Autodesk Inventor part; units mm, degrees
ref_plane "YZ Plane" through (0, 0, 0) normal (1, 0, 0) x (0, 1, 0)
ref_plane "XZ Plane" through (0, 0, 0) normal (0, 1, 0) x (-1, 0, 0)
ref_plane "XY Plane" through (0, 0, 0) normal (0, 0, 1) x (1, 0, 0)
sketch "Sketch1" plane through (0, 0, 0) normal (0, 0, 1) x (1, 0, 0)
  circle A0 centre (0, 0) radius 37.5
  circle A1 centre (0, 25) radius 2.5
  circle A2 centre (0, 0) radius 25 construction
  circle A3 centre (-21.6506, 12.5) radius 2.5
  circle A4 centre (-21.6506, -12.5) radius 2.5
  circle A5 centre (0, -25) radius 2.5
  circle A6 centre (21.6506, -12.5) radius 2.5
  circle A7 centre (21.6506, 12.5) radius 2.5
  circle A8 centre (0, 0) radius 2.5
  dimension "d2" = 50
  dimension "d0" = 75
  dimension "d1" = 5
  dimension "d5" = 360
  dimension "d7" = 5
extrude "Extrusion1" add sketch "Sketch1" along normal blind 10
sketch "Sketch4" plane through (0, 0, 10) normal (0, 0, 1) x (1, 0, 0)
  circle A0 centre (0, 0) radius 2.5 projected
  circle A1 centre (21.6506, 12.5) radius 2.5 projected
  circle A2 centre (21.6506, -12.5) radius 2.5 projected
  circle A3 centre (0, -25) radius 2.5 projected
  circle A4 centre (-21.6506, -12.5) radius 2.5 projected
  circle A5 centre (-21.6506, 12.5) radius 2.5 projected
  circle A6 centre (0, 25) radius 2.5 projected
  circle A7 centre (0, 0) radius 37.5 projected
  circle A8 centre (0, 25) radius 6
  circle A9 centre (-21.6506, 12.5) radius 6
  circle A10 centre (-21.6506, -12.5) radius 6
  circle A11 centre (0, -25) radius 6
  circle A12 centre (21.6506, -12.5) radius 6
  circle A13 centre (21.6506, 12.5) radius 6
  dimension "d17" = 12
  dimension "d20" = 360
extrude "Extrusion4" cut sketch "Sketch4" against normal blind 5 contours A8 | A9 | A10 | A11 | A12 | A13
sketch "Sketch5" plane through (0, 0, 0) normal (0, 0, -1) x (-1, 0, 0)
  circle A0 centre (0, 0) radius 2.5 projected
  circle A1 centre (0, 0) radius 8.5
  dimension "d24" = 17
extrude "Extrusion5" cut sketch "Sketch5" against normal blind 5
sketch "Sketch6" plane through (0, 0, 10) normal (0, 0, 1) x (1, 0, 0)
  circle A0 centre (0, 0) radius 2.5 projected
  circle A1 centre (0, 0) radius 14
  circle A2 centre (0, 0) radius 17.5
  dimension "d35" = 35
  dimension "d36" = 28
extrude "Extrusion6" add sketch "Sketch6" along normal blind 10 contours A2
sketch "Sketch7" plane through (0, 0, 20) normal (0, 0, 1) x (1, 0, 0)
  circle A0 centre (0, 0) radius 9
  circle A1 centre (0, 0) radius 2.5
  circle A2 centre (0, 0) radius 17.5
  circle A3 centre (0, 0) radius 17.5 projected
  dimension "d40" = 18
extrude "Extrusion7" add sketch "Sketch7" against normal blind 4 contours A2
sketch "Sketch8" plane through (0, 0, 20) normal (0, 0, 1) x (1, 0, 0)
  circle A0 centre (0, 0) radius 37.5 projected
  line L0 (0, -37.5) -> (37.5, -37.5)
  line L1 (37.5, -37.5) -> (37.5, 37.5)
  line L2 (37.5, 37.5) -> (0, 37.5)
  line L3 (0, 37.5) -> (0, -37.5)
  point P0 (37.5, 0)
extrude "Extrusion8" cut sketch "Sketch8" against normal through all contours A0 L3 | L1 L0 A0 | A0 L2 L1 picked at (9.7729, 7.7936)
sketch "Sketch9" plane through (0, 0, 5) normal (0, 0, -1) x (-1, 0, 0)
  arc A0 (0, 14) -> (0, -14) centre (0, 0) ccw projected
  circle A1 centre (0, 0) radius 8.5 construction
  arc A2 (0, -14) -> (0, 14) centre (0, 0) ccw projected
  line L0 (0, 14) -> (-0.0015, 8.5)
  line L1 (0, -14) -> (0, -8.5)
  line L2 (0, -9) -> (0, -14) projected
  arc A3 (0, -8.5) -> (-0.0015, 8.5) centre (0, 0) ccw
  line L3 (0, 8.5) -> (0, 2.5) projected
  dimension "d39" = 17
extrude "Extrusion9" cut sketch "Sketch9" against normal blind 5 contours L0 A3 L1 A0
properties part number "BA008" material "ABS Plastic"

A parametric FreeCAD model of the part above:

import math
import FreeCAD as App
import Part
import Sketcher

doc = App.newDocument("Part")
body = doc.addObject("PartDesign::Body", "Body")

sketch1 = body.newObject("Sketcher::SketchObject", "Sketch")
sketch1.AttachmentSupport = (doc.getObject("XY_Plane"), [""])
sketch1.MapMode = "FlatFace"
sketch1.addGeometry([
    Part.Circle(App.Vector(0, 0, 0), App.Vector(0, 0, 1), 37.5),
    Part.Circle(App.Vector(-21.7, -12.5, 0), App.Vector(0, 0, 1), 2.5),
    Part.Circle(App.Vector(0, -25, 0), App.Vector(0, 0, 1), 2.5),
    Part.Circle(App.Vector(21.7, -12.5, 0), App.Vector(0, 0, 1), 2.5),
    Part.Circle(App.Vector(-21.7, 12.5, 0), App.Vector(0, 0, 1), 2.5),
    Part.Circle(App.Vector(0, 0, 0), App.Vector(0, 0, 1), 2.5),
    Part.Circle(App.Vector(21.7, 12.5, 0), App.Vector(0, 0, 1), 2.5),
    Part.Circle(App.Vector(0, 25, 0), App.Vector(0, 0, 1), 2.5),
], False)
sketch1.addConstraint([
    Sketcher.Constraint("Coincident", 0, 3, -1, 1),
    Sketcher.Constraint("Coincident", 5, 3, -1, 1),
    Sketcher.Constraint("Equal", 1, 2),
    Sketcher.Constraint("Equal", 2, 3),
    Sketcher.Constraint("Equal", 3, 4),
    Sketcher.Constraint("Equal", 4, 5),
    Sketcher.Constraint("Equal", 5, 6),
    Sketcher.Constraint("Equal", 6, 7),
    Sketcher.Constraint("Symmetric", 3, 3, 4, 3, -1, 1),
    Sketcher.Constraint("Symmetric", 1, 3, 6, 3, -1, 1),
    Sketcher.Constraint("Symmetric", 2, 3, 7, 3, -1, 1),
    Sketcher.Constraint("Symmetric", 1, 3, 3, 3, -2),
    Sketcher.Constraint("PointOnObject", 2, 3, -2),
    Sketcher.Constraint("Diameter", 0, 75.0),
    Sketcher.Constraint("Diameter", 1, 5.0),
    Sketcher.Constraint("DistanceY", 2, 3, -1, 1, 25.0),
    Sketcher.Constraint("DistanceY", 1, 3, 4, 3, 25.0),
    Sketcher.Constraint("DistanceX", 1, 3, -1, 1, 21.6506),
])
pad1 = body.newObject("PartDesign::Pad", "Pad")
pad1.Profile = sketch1
pad1.Length = 10

sketch2 = body.newObject("Sketcher::SketchObject", "Sketch001")
sketch2.AttachmentSupport = (doc.getObject("XY_Plane"), [""])
sketch2.MapMode = "FlatFace"
sketch2.AttachmentOffset = App.Placement(App.Vector(0, 0, 10), App.Rotation())
sketch2.addGeometry([
    Part.Circle(App.Vector(0, 25, 0), App.Vector(0, 0, 1), 6),
    Part.Circle(App.Vector(0, 25, 0), App.Vector(0, 0, 1), 2.5),
    Part.Circle(App.Vector(-21.7, 12.5, 0), App.Vector(0, 0, 1), 6),
    Part.Circle(App.Vector(-21.7, 12.5, 0), App.Vector(0, 0, 1), 2.5),
    Part.Circle(App.Vector(-21.7, -12.5, 0), App.Vector(0, 0, 1), 6),
    Part.Circle(App.Vector(-21.7, -12.5, 0), App.Vector(0, 0, 1), 2.5),
    Part.Circle(App.Vector(0, -25, 0), App.Vector(0, 0, 1), 6),
    Part.Circle(App.Vector(0, -25, 0), App.Vector(0, 0, 1), 2.5),
    Part.Circle(App.Vector(21.7, -12.5, 0), App.Vector(0, 0, 1), 6),
    Part.Circle(App.Vector(21.7, -12.5, 0), App.Vector(0, 0, 1), 2.5),
    Part.Circle(App.Vector(21.7, 12.5, 0), App.Vector(0, 0, 1), 6),
    Part.Circle(App.Vector(21.7, 12.5, 0), App.Vector(0, 0, 1), 2.5),
], False)
sketch2.addConstraint([
    Sketcher.Constraint("Coincident", 1, 3, 0, 3),
    Sketcher.Constraint("Coincident", 3, 3, 2, 3),
    Sketcher.Constraint("Coincident", 5, 3, 4, 3),
    Sketcher.Constraint("Coincident", 7, 3, 6, 3),
    Sketcher.Constraint("Coincident", 9, 3, 8, 3),
    Sketcher.Constraint("Coincident", 11, 3, 10, 3),
    Sketcher.Constraint("Equal", 0, 2),
    Sketcher.Constraint("Equal", 1, 3),
    Sketcher.Constraint("Equal", 2, 4),
    Sketcher.Constraint("Equal", 3, 5),
    Sketcher.Constraint("Equal", 4, 6),
    Sketcher.Constraint("Equal", 5, 7),
    Sketcher.Constraint("Equal", 6, 8),
    Sketcher.Constraint("Equal", 7, 9),
    Sketcher.Constraint("Equal", 8, 10),
    Sketcher.Constraint("Equal", 9, 11),
    Sketcher.Constraint("Symmetric", 0, 3, 6, 3, -1, 1),
    Sketcher.Constraint("Symmetric", 2, 3, 8, 3, -1, 1),
    Sketcher.Constraint("Symmetric", 4, 3, 10, 3, -1, 1),
    Sketcher.Constraint("Symmetric", 4, 3, 8, 3, -2),
    Sketcher.Constraint("PointOnObject", 0, 3, -2),
    Sketcher.Constraint("Diameter", 0, 12.0),
    Sketcher.Constraint("Diameter", 1, 5.0),
    Sketcher.Constraint("DistanceY", -1, 1, 0, 3, 25.0),
    Sketcher.Constraint("DistanceY", 4, 3, 2, 3, 25.0),
    Sketcher.Constraint("DistanceX", 2, 3, -1, 1, 21.6506),
])
pocket1 = body.newObject("PartDesign::Pocket", "Pocket")
pocket1.Profile = sketch2
pocket1.Length = 5

sketch3 = body.newObject("Sketcher::SketchObject", "Sketch002")
sketch3.AttachmentSupport = (doc.getObject("XY_Plane"), [""])
sketch3.MapMode = "FlatFace"
sketch3.addGeometry([
    Part.Circle(App.Vector(0, 0, 0), App.Vector(0, 0, 1), 8.5),
    Part.Circle(App.Vector(0, 0, 0), App.Vector(0, 0, 1), 2.5),
], False)
sketch3.addConstraint([
    Sketcher.Constraint("Coincident", 0, 3, -1, 1),
    Sketcher.Constraint("Coincident", 1, 3, -1, 1),
    Sketcher.Constraint("Diameter", 0, 17.0),
    Sketcher.Constraint("Diameter", 1, 5.0),
])
pocket2 = body.newObject("PartDesign::Pocket", "Pocket001")
pocket2.Profile = sketch3
pocket2.Length = 5
pocket2.Reversed = True

sketch4 = body.newObject("Sketcher::SketchObject", "Sketch003")
sketch4.AttachmentSupport = (doc.getObject("XY_Plane"), [""])
sketch4.MapMode = "FlatFace"
sketch4.AttachmentOffset = App.Placement(App.Vector(0, 0, 10), App.Rotation())
sketch4.addGeometry([
    Part.Circle(App.Vector(0, 0, 0), App.Vector(0, 0, 1), 18),
    Part.Circle(App.Vector(0, 0, 0), App.Vector(0, 0, 1), 14),
], False)
sketch4.addConstraint([
    Sketcher.Constraint("Coincident", 0, 3, -1, 1),
    Sketcher.Constraint("Coincident", 1, 3, -1, 1),
    Sketcher.Constraint("Diameter", 0, 35.0),
    Sketcher.Constraint("Diameter", 1, 28.0),
])
pad2 = body.newObject("PartDesign::Pad", "Pad001")
pad2.Profile = sketch4
pad2.Length = 10

sketch5 = body.newObject("Sketcher::SketchObject", "Sketch004")
sketch5.AttachmentSupport = (doc.getObject("XY_Plane"), [""])
sketch5.MapMode = "FlatFace"
sketch5.AttachmentOffset = App.Placement(App.Vector(0, 0, 20), App.Rotation())
sketch5.addGeometry([
    Part.Circle(App.Vector(0, 0, 0), App.Vector(0, 0, 1), 18),
    Part.Circle(App.Vector(0, 0, 0), App.Vector(0, 0, 1), 9),
], False)
sketch5.addConstraint([
    Sketcher.Constraint("Coincident", 0, 3, -1, 1),
    Sketcher.Constraint("Coincident", 1, 3, -1, 1),
    Sketcher.Constraint("Diameter", 1, 18.0),
    Sketcher.Constraint("Diameter", 0, 35.0),
])
pad3 = body.newObject("PartDesign::Pad", "Pad002")
pad3.Profile = sketch5
pad3.Length = 4
pad3.Reversed = True

sketch6 = body.newObject("Sketcher::SketchObject", "Sketch005")
sketch6.AttachmentSupport = (doc.getObject("XY_Plane"), [""])
sketch6.MapMode = "FlatFace"
sketch6.AttachmentOffset = App.Placement(App.Vector(0, 0, 20), App.Rotation())
sketch6.addGeometry([
    Part.LineSegment(App.Vector(0, 38, 0), App.Vector(0, -38, 0)),
    Part.LineSegment(App.Vector(0, -38, 0), App.Vector(38, -38, 0)),
    Part.LineSegment(App.Vector(38, -38, 0), App.Vector(38, 38, 0)),
    Part.LineSegment(App.Vector(38, 38, 0), App.Vector(0, 38, 0)),
], False)
sketch6.addConstraint([
    Sketcher.Constraint("Coincident", 0, 2, 1, 1),
    Sketcher.Constraint("Coincident", 1, 2, 2, 1),
    Sketcher.Constraint("Coincident", 2, 2, 3, 1),
    Sketcher.Constraint("Coincident", 3, 2, 0, 1),
    Sketcher.Constraint("Vertical", 0),
    Sketcher.Constraint("Horizontal", 1),
    Sketcher.Constraint("Vertical", 2),
    Sketcher.Constraint("Horizontal", 3),
    Sketcher.Constraint("Symmetric", 0, 2, 3, 2, -1, 1),
    Sketcher.Constraint("DistanceY", 0, 2, 0, 1, 75.0),
    Sketcher.Constraint("DistanceX", 1, 1, 1, 2, 37.5),
])
pocket3 = body.newObject("PartDesign::Pocket", "Pocket002")
pocket3.Profile = sketch6
pocket3.Type = "ThroughAll"

sketch7 = body.newObject("Sketcher::SketchObject", "Sketch006")
sketch7.AttachmentSupport = (doc.getObject("XY_Plane"), [""])
sketch7.MapMode = "FlatFace"
sketch7.AttachmentOffset = App.Placement(App.Vector(0, 0, 5), App.Rotation())
sketch7.addGeometry([
    Part.LineSegment(App.Vector(0, 8, 0), App.Vector(0, 14, 0)),
    Part.ArcOfCircle(Part.Circle(App.Vector(0, 0, 0), App.Vector(0, 0, 1), 14), math.radians(-90), math.radians(90)),
    Part.LineSegment(App.Vector(0, -14, 0), App.Vector(0, -8, 0)),
    Part.ArcOfCircle(Part.Circle(App.Vector(0, 0, 0), App.Vector(0, 0, 1), 8), math.radians(90), math.radians(270)),
], False)
sketch7.addConstraint([
    Sketcher.Constraint("Coincident", 0, 2, 1, 2),
    Sketcher.Constraint("Coincident", 1, 1, 2, 1),
    Sketcher.Constraint("Coincident", 2, 2, 3, 2),
    Sketcher.Constraint("Coincident", 3, 1, 0, 1),
    Sketcher.Constraint("Vertical", 2),
    Sketcher.Constraint("Coincident", 1, 3, -1, 1),
    Sketcher.Constraint("Coincident", 3, 3, -1, 1),
    Sketcher.Constraint("PointOnObject", 0, 2, -2),
    Sketcher.Constraint("PointOnObject", 1, 1, -2),
    Sketcher.Constraint("Radius", 3, 8.5),
    Sketcher.Constraint("Radius", 1, 14.0),
    Sketcher.Constraint("DistanceX", -1, 1, 3, 1, 0.0015),
])
pocket4 = body.newObject("PartDesign::Pocket", "Pocket003")
pocket4.Profile = sketch7
pocket4.Length = 5
pocket4.Reversed = True

doc.recompute()
